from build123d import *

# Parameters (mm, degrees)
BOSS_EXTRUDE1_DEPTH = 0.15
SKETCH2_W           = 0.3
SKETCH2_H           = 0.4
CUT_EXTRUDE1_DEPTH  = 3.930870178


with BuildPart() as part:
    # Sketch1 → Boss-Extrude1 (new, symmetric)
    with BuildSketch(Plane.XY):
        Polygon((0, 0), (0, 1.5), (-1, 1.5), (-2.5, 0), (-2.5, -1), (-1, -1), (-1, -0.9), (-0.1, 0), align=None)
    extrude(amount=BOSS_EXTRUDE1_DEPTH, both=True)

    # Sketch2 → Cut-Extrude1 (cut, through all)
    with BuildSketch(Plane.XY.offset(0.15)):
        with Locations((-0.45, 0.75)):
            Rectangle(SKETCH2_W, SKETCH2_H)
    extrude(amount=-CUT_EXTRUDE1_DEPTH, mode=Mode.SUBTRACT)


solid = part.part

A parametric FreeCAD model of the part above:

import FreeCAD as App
import Part
import Sketcher
from FreeCAD import Vector
Q = App.Units.Quantity

doc = App.newDocument("Part")
body = doc.addObject("PartDesign::Body", "Body")

# Sketch on XY plane
sketch1 = body.newObject("Sketcher::SketchObject", "Sketch")
sketch1.AttachmentSupport = (doc.getObject("XY_Plane"), [""])
sketch1.MapMode = "FlatFace"
sketch1.addGeometry([
    Part.LineSegment(Vector(0, 0, 0), Vector(0, 1.5, 0)),  # 0
    Part.LineSegment(Vector(0, 1.5, 0), Vector(-1, 1.5, 0)),  # 1
    Part.LineSegment(Vector(-1, 1.5, 0), Vector(-2.5, 0, 0)),  # 2
    Part.LineSegment(Vector(-2.5, 0, 0), Vector(-2.5, -1, 0)),  # 3
    Part.LineSegment(Vector(-2.5, -1, 0), Vector(-1, -1, 0)),  # 4
    Part.LineSegment(Vector(-1, -1, 0), Vector(-1, -0.9, 0)),  # 5
    Part.LineSegment(Vector(-1, -0.9, 0), Vector(-0.1, 0, 0)),  # 6
    Part.LineSegment(Vector(-0.1, 0, 0), Vector(0, 0, 0)),  # 7
], False)
sketch1.addConstraint([
    Sketcher.Constraint("Coincident", 0, 2, 1, 1),
    Sketcher.Constraint("Coincident", 1, 2, 2, 1),
    Sketcher.Constraint("Coincident", 2, 2, 3, 1),
    Sketcher.Constraint("Coincident", 3, 2, 4, 1),
    Sketcher.Constraint("Coincident", 4, 2, 5, 1),
    Sketcher.Constraint("Coincident", 5, 2, 6, 1),
    Sketcher.Constraint("Coincident", 6, 2, 7, 1),
    Sketcher.Constraint("Coincident", 7, 2, 0, 1),
    Sketcher.Constraint("Vertical", 0),
    Sketcher.Constraint("Horizontal", 1),
    Sketcher.Constraint("Vertical", 3),
    Sketcher.Constraint("Horizontal", 4),
    Sketcher.Constraint("Vertical", 5),
    Sketcher.Constraint("Horizontal", 7),
    Sketcher.Constraint("Coincident", 7, 2, -1, 1),
    Sketcher.Constraint("PointOnObject", 2, 2, -1),
    Sketcher.Constraint("Parallel", 2, 6),
    Sketcher.Constraint("Vertical", 1, 2, 4, 2),
    Sketcher.Constraint("Equal", 4, 0),
    Sketcher.Constraint("Equal", 1, 3),
    Sketcher.Constraint("DistanceX", 1, 2, 1, 1, Q("1 mm")),
    Sketcher.Constraint("DistanceX", 4, 1, 4, 2, Q("1.5 mm")),
    Sketcher.Constraint("DistanceX", 7, 1, 7, 2, Q("0.1 mm")),
])
pad1 = body.newObject("PartDesign::Pad", "Pad")
pad1.Profile = sketch1
pad1.Length = 0.3
pad1.Midplane = True

# Sketch on XY plane
sketch2 = body.newObject("Sketcher::SketchObject", "Sketch001")
sketch2.AttachmentSupport = (doc.getObject("XY_Plane"), [""])
sketch2.MapMode = "FlatFace"
sketch2.AttachmentOffset = App.Placement(Vector(0, 0, 0.15), App.Rotation())
sketch2.addGeometry([
    Part.LineSegment(Vector(-0.6, 0.95, 0), Vector(-0.6, 0.55, 0)),
    Part.LineSegment(Vector(-0.6, 0.55, 0), Vector(-0.3, 0.55, 0)),
    Part.LineSegment(Vector(-0.3, 0.55, 0), Vector(-0.3, 0.95, 0)),
    Part.LineSegment(Vector(-0.3, 0.95, 0), Vector(-0.6, 0.95, 0)),
], False)
sketch2.addConstraint([
    Sketcher.Constraint("Coincident", 0, 2, 1, 1),
    Sketcher.Constraint("Coincident", 1, 2, 2, 1),
    Sketcher.Constraint("Coincident", 2, 2, 3, 1),
    Sketcher.Constraint("Coincident", 3, 2, 0, 1),
    Sketcher.Constraint("Vertical", 0),
    Sketcher.Constraint("Horizontal", 1),
    Sketcher.Constraint("Vertical", 2),
    Sketcher.Constraint("Horizontal", 3),
    Sketcher.Constraint("DistanceX", 1, 1, 1, 2, Q("0.3 mm")),
    Sketcher.Constraint("DistanceY", 0, 2, 0, 1, Q("0.4 mm")),
    Sketcher.Constraint("DistanceX", 0, 2, -1, 1, Q("0.6 mm")),
    Sketcher.Constraint("DistanceY", -1, 1, 0, 2, Q("0.55 mm")),
])
pocket1 = body.newObject("PartDesign::Pocket", "Pocket")
pocket1.Profile = sketch2
pocket1.Type = "ThroughAll"

doc.recompute()
